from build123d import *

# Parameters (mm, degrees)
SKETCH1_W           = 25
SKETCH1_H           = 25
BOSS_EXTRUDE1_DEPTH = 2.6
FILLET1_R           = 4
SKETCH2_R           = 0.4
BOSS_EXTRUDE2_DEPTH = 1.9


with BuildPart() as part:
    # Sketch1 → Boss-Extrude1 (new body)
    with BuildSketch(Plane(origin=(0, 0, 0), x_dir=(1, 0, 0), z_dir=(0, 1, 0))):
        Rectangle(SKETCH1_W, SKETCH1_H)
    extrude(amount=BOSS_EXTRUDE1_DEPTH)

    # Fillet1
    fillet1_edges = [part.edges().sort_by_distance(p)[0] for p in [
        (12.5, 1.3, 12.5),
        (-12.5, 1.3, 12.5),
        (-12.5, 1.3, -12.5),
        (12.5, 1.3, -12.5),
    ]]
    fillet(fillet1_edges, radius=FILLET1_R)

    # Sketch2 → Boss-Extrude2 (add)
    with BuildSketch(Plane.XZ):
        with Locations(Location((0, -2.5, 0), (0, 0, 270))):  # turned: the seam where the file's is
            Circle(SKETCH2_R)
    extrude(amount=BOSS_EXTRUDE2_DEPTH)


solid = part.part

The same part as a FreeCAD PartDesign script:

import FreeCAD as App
import Part
import Sketcher
Q = App.Units.Quantity


def edges_at(feature, points):
    """Names of the edges that pass closest to the given points."""
    edges = feature.Shape.Edges
    near = lambda p: min(range(len(edges)), key=lambda i: edges[i].distToShape(Part.Vertex(*p))[0])
    return sorted({f"Edge{near(p) + 1}" for p in points})


def add_polygon(sketch, points):
    """Adds a closed chain of lines whose ends are joined by coincident constraints."""
    first, n = sketch.GeometryCount, len(points)
    for a, b in zip(points, points[1:] + points[:1]):
        sketch.addGeometry(Part.LineSegment(App.Vector(*a, 0), App.Vector(*b, 0)), False)
    for i in range(n):
        sketch.addConstraint(Sketcher.Constraint("Coincident", first + i, 2, first + (i + 1) % n, 1))

doc = App.newDocument("Part")
params = doc.addObject("Spreadsheet::Sheet", "Params")
for row, (alias, value) in enumerate([
    ("sketch1_width", "25 mm"),
    ("pad1_length", "2.6 mm"),
    ("fillet_radius", "4 mm"),
    ("sketch2_diameter", "0.8 mm"),
    ("pad2_length", "1.9 mm"),
], start=1):
    params.set(f"A{row}", alias)
    params.set(f"B{row}", "=" + value)
    params.setAlias(f"B{row}", alias)

body = doc.addObject("PartDesign::Body", "Body")

sketch1 = body.newObject("Sketcher::SketchObject", "Sketch")
sketch1.AttachmentSupport = (doc.getObject("XZ_Plane"), [""])
sketch1.MapMode = "FlatFace"
add_polygon(sketch1, [(-12, -12), (-12, 12), (12, 12), (12, -12)])
sketch1.addConstraint([
    Sketcher.Constraint("Vertical", 0),
    Sketcher.Constraint("Horizontal", 1),
    Sketcher.Constraint("Vertical", 2),
    Sketcher.Constraint("Horizontal", 3),
    Sketcher.Constraint("Symmetric", 0, 2, 2, 2, -1, 1),
    Sketcher.Constraint("Equal", 3, 0),
    Sketcher.Constraint("DistanceX", 1, 1, 1, 2, Q("25 mm")),
])
sketch1.setExpression("Constraints[10]", "Params.sketch1_width")
pad1 = body.newObject("PartDesign::Pad", "Pad")
pad1.Profile = sketch1
pad1.setExpression("Length", "Params.pad1_length")
pad1.Reversed = True
doc.recompute()

fillet = body.newObject("PartDesign::Fillet", "Fillet")
fillet.Base = (pad1, edges_at(pad1, [
    (12.5, 1.3, 12.5),
    (-12.5, 1.3, 12.5),
    (-12.5, 1.3, -12.5),
    (12.5, 1.3, -12.5),
]))
fillet.setExpression("Radius", "Params.fillet_radius")

sketch2 = body.newObject("Sketcher::SketchObject", "Sketch001")
sketch2.AttachmentSupport = (doc.getObject("XZ_Plane"), [""])
sketch2.MapMode = "FlatFace"
sketch2.addGeometry(Part.Circle(App.Vector(0, -2.5, 0), App.Vector(0, 0, 1), 0.4), False)
sketch2.addConstraint([
    Sketcher.Constraint("PointOnObject", 0, 3, -2),
    Sketcher.Constraint("Diameter", 0, Q("0.8 mm")),
    Sketcher.Constraint("DistanceY", 0, 3, -1, 1, Q("2.5 mm")),
])
sketch2.setExpression("Constraints[1]", "Params.sketch2_diameter")
pad2 = body.newObject("PartDesign::Pad", "Pad001")
pad2.Profile = sketch2
pad2.setExpression("Length", "Params.pad2_length")

doc.recompute()
